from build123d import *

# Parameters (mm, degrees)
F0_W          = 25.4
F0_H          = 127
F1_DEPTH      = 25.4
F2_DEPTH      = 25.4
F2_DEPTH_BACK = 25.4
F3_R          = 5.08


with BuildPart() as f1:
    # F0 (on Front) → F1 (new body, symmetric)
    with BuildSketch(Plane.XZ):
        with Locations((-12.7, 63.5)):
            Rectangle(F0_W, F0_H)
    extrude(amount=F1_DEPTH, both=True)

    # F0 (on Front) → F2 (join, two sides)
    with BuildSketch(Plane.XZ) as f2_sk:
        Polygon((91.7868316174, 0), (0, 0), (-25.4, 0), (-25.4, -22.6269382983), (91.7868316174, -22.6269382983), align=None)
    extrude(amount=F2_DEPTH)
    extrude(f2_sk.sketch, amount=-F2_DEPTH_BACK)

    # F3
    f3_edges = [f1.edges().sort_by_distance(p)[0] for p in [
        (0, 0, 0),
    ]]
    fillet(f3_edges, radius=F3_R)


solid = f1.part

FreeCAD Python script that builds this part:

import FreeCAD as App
import Part
import Sketcher
from FreeCAD import Vector
Q = App.Units.Quantity


def edges_at(feature, points):
    """Names of the edges that pass closest to the given points."""
    edges = feature.Shape.Edges
    near = lambda p: min(range(len(edges)), key=lambda i: edges[i].distToShape(Part.Vertex(*p))[0])
    return sorted({f"Edge{near(p) + 1}" for p in points})

doc = App.newDocument("Part")
params = doc.addObject("Spreadsheet::Sheet", "Params")
for row, (alias, value) in enumerate([
    ("sketch1_width", "1 in"),
    ("sketch1_height", "5 in"),
    ("pad1_length", "2 in"),
    ("pad2_length", "1 in"),
    ("pad2_length2", "1 in"),
    ("fillet_radius", "0.2 in"),
], start=1):
    params.set(f"A{row}", alias)
    params.set(f"B{row}", "=" + value)
    params.setAlias(f"B{row}", alias)

body = doc.addObject("PartDesign::Body", "Body")

# Sketch on XZ plane
sketch1 = doc.addObject("Sketcher::SketchObject", "Sketch")
body.addObject(sketch1)
sketch1.AttachmentSupport = (doc.XZ_Plane, [""])
sketch1.MapMode = "FlatFace"
sketch1.addGeometry(Part.LineSegment(Vector(-25, 127, 0), Vector(-25, 0, 0)), False)
sketch1.addGeometry(Part.LineSegment(Vector(-25, 0, 0), Vector(0, 0, 0)), False)
sketch1.addGeometry(Part.LineSegment(Vector(0, 0, 0), Vector(0, 127, 0)), False)
sketch1.addGeometry(Part.LineSegment(Vector(0, 127, 0), Vector(-25, 127, 0)), False)
sketch1.addConstraint(Sketcher.Constraint("Coincident", 0, 2, 1, 1))
sketch1.addConstraint(Sketcher.Constraint("Coincident", 1, 2, 2, 1))
sketch1.addConstraint(Sketcher.Constraint("Coincident", 2, 2, 3, 1))
sketch1.addConstraint(Sketcher.Constraint("Coincident", 3, 2, 0, 1))
sketch1.addConstraint(Sketcher.Constraint("Vertical", 0))
sketch1.addConstraint(Sketcher.Constraint("Horizontal", 1))
sketch1.addConstraint(Sketcher.Constraint("Vertical", 2))
sketch1.addConstraint(Sketcher.Constraint("Horizontal", 3))
sketch1.addConstraint(Sketcher.Constraint("Coincident", 1, 2, -1, 1))
sketch1.addConstraint(Sketcher.Constraint("DistanceX", 1, 1, 1, 2, Q("1 in")))
sketch1.addConstraint(Sketcher.Constraint("DistanceY", 0, 2, 0, 1, Q("5 in")))
sketch1.setExpression("Constraints[9]", "Params.sketch1_width")
sketch1.setExpression("Constraints[10]", "Params.sketch1_height")
pad1 = doc.addObject("PartDesign::Pad", "Pad")
body.addObject(pad1)
pad1.Profile = sketch1
pad1.setExpression("Length", "Params.pad1_length")
pad1.Midplane = True

# Sketch on XZ plane
sketch2 = doc.addObject("Sketcher::SketchObject", "Sketch001")
body.addObject(sketch2)
sketch2.AttachmentSupport = (doc.XZ_Plane, [""])
sketch2.MapMode = "FlatFace"
sketch2.addGeometry(Part.LineSegment(Vector(92, 0, 0), Vector(-25, 0, 0)), False)
sketch2.addGeometry(Part.LineSegment(Vector(-25, 0, 0), Vector(-25, -23, 0)), False)
sketch2.addGeometry(Part.LineSegment(Vector(-25, -23, 0), Vector(92, -23, 0)), False)
sketch2.addGeometry(Part.LineSegment(Vector(92, -23, 0), Vector(92, 0, 0)), False)
sketch2.addConstraint(Sketcher.Constraint("Coincident", 0, 2, 1, 1))
sketch2.addConstraint(Sketcher.Constraint("Coincident", 1, 2, 2, 1))
sketch2.addConstraint(Sketcher.Constraint("Coincident", 2, 2, 3, 1))
sketch2.addConstraint(Sketcher.Constraint("Coincident", 3, 2, 0, 1))
sketch2.addConstraint(Sketcher.Constraint("Horizontal", 0))
sketch2.addConstraint(Sketcher.Constraint("Vertical", 1))
sketch2.addConstraint(Sketcher.Constraint("Horizontal", 2))
sketch2.addConstraint(Sketcher.Constraint("Vertical", 3))
sketch2.addConstraint(Sketcher.Constraint("PointOnObject", 0, 2, -1))
sketch2.addConstraint(Sketcher.Constraint("DistanceX", 0, 2, -1, 1, Q("1 in")))
sketch2.addConstraint(Sketcher.Constraint("DistanceX", 0, 2, 0, 1, 117.186832))
sketch2.addConstraint(Sketcher.Constraint("DistanceY", 1, 2, 1, 1, 22.626938))
pad2 = doc.addObject("PartDesign::Pad", "Pad001")
body.addObject(pad2)
pad2.Profile = sketch2
pad2.Type = "TwoLengths"
pad2.setExpression("Length", "Params.pad2_length")
pad2.setExpression("Length2", "Params.pad2_length2")
doc.recompute()

fillet = doc.addObject("PartDesign::Fillet", "Fillet")
body.addObject(fillet)
fillet.Base = (pad2, edges_at(pad2, [(0, 0, 0)]))
fillet.setExpression("Radius", "Params.fillet_radius")

doc.recompute()
